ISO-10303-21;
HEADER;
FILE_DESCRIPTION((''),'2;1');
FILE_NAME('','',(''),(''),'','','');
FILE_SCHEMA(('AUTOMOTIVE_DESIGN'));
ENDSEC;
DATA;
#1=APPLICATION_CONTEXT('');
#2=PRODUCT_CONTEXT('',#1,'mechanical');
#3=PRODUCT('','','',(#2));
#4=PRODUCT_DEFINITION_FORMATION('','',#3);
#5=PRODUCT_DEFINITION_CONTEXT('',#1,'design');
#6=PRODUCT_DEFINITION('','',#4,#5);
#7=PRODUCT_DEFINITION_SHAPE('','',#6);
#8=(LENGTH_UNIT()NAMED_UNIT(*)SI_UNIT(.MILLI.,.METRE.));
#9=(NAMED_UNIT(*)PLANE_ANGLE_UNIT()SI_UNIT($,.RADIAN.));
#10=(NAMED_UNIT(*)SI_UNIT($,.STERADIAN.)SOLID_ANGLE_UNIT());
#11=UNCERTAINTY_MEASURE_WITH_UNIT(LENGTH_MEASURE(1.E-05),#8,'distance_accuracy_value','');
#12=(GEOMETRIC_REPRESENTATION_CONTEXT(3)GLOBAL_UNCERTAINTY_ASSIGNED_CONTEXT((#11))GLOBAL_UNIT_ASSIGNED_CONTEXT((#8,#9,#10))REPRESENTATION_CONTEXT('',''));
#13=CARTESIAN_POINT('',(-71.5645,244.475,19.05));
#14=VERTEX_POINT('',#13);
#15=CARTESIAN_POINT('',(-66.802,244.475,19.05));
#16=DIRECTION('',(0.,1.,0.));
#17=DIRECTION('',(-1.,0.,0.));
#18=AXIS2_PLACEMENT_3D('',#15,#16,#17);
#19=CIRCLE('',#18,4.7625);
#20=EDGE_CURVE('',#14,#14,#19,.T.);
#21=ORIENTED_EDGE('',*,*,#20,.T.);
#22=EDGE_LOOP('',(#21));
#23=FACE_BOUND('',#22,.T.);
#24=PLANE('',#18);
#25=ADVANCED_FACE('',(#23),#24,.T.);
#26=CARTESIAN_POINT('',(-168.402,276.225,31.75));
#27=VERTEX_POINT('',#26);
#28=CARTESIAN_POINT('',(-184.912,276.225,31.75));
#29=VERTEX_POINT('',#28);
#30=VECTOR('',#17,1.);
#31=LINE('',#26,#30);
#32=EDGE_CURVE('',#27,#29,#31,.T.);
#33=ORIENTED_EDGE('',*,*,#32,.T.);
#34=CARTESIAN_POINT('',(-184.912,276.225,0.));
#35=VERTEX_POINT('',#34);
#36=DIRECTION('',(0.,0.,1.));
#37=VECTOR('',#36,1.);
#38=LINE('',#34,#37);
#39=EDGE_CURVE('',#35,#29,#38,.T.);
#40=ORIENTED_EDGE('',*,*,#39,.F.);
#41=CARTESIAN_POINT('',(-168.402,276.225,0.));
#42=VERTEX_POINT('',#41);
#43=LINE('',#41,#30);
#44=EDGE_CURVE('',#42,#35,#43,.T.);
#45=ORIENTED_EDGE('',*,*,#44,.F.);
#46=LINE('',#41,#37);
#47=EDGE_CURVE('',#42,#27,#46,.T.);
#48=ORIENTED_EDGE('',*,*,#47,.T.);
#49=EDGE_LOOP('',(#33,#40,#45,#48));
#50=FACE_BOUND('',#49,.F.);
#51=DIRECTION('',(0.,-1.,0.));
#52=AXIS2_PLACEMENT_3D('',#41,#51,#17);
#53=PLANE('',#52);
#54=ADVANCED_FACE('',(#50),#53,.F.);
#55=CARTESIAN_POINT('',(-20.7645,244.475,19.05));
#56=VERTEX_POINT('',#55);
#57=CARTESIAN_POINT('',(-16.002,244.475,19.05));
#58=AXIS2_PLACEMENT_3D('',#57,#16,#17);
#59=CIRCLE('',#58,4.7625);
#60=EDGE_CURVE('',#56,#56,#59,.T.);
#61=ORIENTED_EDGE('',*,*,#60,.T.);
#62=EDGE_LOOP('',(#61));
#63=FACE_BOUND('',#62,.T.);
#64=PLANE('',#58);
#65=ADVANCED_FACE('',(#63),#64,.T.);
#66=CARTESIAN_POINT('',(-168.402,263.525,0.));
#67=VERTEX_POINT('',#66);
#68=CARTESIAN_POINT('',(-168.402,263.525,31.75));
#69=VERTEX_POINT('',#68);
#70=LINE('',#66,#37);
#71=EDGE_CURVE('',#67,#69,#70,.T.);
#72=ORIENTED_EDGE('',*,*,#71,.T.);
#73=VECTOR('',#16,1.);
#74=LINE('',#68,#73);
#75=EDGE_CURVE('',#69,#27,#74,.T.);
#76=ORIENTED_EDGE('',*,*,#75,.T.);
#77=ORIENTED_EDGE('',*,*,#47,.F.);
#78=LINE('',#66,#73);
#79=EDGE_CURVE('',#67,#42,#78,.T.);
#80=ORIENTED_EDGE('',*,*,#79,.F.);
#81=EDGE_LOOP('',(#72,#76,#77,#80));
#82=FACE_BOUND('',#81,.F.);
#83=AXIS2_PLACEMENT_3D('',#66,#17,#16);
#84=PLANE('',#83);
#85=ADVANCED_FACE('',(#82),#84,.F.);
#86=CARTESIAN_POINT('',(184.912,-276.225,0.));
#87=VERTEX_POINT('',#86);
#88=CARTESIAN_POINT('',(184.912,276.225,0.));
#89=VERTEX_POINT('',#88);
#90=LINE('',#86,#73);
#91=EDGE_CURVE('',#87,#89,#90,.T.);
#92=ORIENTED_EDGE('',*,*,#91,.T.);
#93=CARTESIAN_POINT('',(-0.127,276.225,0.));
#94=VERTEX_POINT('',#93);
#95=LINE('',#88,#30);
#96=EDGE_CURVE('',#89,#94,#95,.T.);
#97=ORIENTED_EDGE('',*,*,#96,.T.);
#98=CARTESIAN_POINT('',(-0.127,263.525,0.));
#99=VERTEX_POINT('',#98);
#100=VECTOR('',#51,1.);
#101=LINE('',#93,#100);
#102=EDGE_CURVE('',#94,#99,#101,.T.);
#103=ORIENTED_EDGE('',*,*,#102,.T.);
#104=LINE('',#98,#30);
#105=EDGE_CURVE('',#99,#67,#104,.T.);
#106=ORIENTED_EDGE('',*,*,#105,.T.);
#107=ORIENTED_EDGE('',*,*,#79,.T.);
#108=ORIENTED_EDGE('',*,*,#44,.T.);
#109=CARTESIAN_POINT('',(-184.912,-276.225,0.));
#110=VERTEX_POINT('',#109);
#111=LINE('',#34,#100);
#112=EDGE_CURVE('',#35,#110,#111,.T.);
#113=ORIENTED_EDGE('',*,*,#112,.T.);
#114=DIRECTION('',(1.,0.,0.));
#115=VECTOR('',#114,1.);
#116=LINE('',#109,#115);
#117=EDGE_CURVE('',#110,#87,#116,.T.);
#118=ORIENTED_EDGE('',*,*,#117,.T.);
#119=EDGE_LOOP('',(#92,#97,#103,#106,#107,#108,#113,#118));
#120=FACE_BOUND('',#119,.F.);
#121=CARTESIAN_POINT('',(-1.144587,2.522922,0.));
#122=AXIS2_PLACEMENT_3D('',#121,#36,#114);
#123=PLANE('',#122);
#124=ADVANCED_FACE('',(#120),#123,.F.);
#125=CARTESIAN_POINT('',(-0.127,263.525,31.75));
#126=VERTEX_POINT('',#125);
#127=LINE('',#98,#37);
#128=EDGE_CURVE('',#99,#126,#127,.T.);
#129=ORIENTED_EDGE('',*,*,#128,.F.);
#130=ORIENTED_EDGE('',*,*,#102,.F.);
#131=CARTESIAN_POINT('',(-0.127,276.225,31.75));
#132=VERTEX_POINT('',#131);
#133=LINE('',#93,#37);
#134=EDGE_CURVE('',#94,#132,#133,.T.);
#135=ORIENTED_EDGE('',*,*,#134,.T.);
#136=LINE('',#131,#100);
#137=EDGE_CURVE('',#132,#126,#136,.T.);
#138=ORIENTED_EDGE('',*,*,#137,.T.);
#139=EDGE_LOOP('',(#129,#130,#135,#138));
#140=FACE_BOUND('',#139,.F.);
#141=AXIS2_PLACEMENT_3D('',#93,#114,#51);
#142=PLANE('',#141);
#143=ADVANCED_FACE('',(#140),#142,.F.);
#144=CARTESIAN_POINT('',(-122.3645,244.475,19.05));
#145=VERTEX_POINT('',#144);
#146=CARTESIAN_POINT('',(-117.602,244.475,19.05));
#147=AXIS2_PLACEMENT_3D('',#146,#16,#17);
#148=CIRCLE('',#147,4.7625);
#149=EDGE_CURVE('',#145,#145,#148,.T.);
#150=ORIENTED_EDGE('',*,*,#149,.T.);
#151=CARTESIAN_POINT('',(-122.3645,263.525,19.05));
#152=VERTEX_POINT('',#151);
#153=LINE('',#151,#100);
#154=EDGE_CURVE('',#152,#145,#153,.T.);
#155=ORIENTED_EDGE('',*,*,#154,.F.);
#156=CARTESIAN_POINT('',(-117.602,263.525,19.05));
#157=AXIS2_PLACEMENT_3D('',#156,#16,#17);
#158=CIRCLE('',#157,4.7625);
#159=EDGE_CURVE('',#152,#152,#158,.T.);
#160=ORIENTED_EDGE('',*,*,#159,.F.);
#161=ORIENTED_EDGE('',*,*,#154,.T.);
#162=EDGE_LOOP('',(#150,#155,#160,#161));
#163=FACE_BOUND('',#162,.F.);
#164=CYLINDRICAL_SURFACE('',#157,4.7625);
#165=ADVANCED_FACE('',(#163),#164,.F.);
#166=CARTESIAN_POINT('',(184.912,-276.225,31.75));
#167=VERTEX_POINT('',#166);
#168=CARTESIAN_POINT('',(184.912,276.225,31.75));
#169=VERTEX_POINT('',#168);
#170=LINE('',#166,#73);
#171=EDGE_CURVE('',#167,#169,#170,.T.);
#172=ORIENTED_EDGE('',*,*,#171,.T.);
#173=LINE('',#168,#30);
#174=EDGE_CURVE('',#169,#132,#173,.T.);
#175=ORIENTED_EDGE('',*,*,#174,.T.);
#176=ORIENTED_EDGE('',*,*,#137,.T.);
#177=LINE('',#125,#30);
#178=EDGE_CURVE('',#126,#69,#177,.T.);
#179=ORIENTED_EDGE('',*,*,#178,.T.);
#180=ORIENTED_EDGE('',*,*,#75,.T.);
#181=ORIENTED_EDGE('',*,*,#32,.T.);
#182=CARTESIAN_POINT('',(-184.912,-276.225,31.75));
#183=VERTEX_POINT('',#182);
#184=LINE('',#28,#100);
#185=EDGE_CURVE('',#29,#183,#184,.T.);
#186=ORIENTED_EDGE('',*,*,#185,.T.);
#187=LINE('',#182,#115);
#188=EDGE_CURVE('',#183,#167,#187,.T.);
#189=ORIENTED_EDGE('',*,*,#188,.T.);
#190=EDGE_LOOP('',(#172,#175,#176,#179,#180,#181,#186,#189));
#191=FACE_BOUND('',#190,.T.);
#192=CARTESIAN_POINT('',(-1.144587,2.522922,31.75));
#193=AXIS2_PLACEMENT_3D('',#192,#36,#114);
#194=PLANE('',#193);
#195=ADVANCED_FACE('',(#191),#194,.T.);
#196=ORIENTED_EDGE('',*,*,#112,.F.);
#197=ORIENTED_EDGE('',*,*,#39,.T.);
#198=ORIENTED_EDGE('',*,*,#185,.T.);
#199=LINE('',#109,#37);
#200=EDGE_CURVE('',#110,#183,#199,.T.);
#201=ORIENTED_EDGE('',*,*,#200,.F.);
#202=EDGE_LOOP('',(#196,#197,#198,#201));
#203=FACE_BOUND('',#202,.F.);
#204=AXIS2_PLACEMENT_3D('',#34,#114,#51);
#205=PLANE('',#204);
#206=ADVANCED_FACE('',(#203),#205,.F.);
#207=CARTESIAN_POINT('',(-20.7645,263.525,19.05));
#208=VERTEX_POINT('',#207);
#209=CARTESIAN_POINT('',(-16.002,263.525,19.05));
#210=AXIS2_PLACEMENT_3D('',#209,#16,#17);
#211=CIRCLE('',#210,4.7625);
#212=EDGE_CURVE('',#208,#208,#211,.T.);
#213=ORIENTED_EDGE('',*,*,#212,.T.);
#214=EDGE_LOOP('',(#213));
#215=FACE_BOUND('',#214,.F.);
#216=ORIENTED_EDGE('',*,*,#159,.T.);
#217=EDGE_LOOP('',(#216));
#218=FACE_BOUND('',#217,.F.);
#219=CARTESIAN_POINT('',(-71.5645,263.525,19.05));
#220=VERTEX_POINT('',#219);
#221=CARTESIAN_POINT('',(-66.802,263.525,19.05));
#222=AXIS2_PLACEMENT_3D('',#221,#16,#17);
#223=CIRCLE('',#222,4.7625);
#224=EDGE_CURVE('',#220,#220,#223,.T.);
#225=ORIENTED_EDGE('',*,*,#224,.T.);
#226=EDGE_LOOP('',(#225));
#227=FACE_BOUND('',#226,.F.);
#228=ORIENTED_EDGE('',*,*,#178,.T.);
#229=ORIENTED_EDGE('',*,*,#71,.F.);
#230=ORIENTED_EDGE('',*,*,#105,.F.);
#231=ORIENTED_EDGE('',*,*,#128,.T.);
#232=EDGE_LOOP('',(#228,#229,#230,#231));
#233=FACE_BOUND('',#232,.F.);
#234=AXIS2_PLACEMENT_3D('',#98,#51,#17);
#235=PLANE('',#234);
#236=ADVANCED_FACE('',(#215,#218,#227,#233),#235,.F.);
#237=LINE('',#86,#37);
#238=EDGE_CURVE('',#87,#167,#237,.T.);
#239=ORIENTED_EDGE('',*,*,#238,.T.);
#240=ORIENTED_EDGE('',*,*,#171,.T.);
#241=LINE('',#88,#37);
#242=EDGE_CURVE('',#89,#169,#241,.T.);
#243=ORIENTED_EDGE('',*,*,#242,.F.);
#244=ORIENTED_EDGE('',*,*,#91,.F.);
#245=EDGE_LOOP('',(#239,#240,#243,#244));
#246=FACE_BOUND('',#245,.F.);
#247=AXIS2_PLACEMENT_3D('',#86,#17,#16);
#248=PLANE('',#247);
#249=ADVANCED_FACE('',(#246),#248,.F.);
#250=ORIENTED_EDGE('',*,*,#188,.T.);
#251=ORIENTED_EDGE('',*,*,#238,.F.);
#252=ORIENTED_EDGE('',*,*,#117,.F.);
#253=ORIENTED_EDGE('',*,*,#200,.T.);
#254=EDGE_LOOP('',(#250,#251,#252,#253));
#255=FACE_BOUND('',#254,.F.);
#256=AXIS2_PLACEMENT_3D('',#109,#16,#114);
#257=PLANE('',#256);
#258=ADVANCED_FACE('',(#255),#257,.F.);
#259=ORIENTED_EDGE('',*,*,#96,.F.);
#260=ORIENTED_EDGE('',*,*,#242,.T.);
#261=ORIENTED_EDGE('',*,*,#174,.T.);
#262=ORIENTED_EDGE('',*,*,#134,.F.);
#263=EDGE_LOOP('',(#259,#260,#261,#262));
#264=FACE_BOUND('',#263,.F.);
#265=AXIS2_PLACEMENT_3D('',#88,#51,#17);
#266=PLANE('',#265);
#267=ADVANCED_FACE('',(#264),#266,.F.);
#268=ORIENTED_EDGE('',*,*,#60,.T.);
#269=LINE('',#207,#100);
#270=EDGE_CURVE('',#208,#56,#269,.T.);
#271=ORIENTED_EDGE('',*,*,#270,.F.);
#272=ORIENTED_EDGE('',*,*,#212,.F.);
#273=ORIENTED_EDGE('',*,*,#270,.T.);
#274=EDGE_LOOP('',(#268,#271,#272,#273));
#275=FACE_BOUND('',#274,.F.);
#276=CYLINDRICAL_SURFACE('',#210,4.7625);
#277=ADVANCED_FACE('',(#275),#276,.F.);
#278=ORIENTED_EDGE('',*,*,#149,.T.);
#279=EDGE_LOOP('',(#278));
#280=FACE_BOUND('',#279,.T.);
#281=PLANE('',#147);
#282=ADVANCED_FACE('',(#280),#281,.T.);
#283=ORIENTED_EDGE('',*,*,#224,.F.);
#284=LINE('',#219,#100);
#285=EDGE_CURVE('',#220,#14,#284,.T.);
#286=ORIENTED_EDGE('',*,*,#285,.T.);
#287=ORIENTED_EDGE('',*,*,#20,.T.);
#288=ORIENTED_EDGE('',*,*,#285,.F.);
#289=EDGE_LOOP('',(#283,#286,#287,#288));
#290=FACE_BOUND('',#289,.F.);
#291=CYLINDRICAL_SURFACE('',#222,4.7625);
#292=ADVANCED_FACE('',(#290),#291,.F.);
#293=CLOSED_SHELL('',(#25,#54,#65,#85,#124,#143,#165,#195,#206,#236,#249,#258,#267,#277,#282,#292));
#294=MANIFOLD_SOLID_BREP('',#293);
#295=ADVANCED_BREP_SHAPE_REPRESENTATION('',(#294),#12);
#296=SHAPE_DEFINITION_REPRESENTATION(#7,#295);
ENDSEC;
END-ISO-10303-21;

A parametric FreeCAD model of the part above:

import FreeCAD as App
import Part
import Sketcher
from FreeCAD import Vector
Q = App.Units.Quantity


def add_polygon(sketch, points):
    """Adds a closed chain of lines whose ends are joined by coincident constraints."""
    first, n = sketch.GeometryCount, len(points)
    for a, b in zip(points, points[1:] + points[:1]):
        sketch.addGeometry(Part.LineSegment(App.Vector(*a, 0), App.Vector(*b, 0)), False)
    for i in range(n):
        sketch.addConstraint(Sketcher.Constraint("Coincident", first + i, 2, first + (i + 1) % n, 1))

doc = App.newDocument("Part")
params = doc.addObject("Spreadsheet::Sheet", "Params")
for row, (alias, value) in enumerate([
    ("sketch1_height", "0.5 in"),
    ("sketch1_width", "0.65 in"),
    ("sketch1_width2", "14.56 in"),
    ("sketch1_height2", "21.75 in"),
    ("sketch1_width3", "7.285 in"),
    ("pad1_length", "1.25 in"),
    ("sketch2_diameter", "0.375 in"),
    ("pocket1_length", "0.75 in"),
], start=1):
    params.set(f"A{row}", alias)
    params.set(f"B{row}", "=" + value)
    params.setAlias(f"B{row}", alias)

body = doc.addObject("PartDesign::Body", "Body")

sketch1 = body.newObject("Sketcher::SketchObject", "Sketch")
sketch1.AttachmentSupport = (doc.getObject("XY_Plane"), [""])
sketch1.MapMode = "FlatFace"
add_polygon(sketch1, [(185, -276), (185, 276), (0, 276), (0, 264), (-168, 264), (-168, 276), (-185, 276), (-185, -276)])
sketch1.addConstraint([
    Sketcher.Constraint("Vertical", 0),
    Sketcher.Constraint("Horizontal", 1),
    Sketcher.Constraint("Vertical", 2),
    Sketcher.Constraint("Horizontal", 3),
    Sketcher.Constraint("Vertical", 4),
    Sketcher.Constraint("Horizontal", 5),
    Sketcher.Constraint("Vertical", 6),
    Sketcher.Constraint("Horizontal", 7),
    Sketcher.Constraint("Symmetric", 0, 2, 6, 2, -1, 1),
    Sketcher.Constraint("Horizontal", 1, 2, 4, 2),
    Sketcher.Constraint("DistanceY", 2, 2, 2, 1, Q("0.5 in")),
    Sketcher.Constraint("DistanceX", 5, 2, 5, 1, Q("0.65 in")),
    Sketcher.Constraint("DistanceX", 7, 1, 7, 2, Q("14.56 in")),
    Sketcher.Constraint("DistanceY", 0, 1, 0, 2, Q("21.75 in")),
    Sketcher.Constraint("DistanceX", 1, 2, 1, 1, Q("7.285 in")),
])
sketch1.setExpression("Constraints[18]", "Params.sketch1_height")
sketch1.setExpression("Constraints[19]", "Params.sketch1_width")
sketch1.setExpression("Constraints[20]", "Params.sketch1_width2")
sketch1.setExpression("Constraints[21]", "Params.sketch1_height2")
sketch1.setExpression("Constraints[22]", "Params.sketch1_width3")
pad1 = body.newObject("PartDesign::Pad", "Pad")
pad1.Profile = sketch1
pad1.setExpression("Length", "Params.pad1_length")

sketch2 = body.newObject("Sketcher::SketchObject", "Sketch001")
sketch2.AttachmentSupport = (doc.getObject("XZ_Plane"), [""])
sketch2.MapMode = "FlatFace"
sketch2.AttachmentOffset = App.Placement(Vector(0, 0, -10.375 * 25.4), App.Rotation())
sketch2.addGeometry([
    Part.Circle(Vector(-117.6, 19.1, 0), Vector(0, 0, 1), 4.8),
    Part.Circle(Vector(-66.8, 19.1, 0), Vector(0, 0, 1), 4.8),
    Part.Circle(Vector(-16, 19.1, 0), Vector(0, 0, 1), 4.8),
], False)
sketch2.addConstraint([
    Sketcher.Constraint("Equal", 0, 1),
    Sketcher.Constraint("Equal", 1, 2),
    Sketcher.Constraint("Horizontal", 0, 3, 1, 3),
    Sketcher.Constraint("Horizontal", 1, 3, 2, 3),
    Sketcher.Constraint("Diameter", 0, Q("0.375 in")),
    Sketcher.Constraint("DistanceX", 0, 3, 1, 3, Q("2 in")),
    Sketcher.Constraint("DistanceX", 1, 3, 2, 3, Q("2 in")),
    Sketcher.Constraint("DistanceX", 0, 3, -1, 1, Q("4.63 in")),
    Sketcher.Constraint("DistanceY", -1, 1, 0, 3, Q("0.75 in")),
])
sketch2.setExpression("Constraints[4]", "Params.sketch2_diameter")
pocket1 = body.newObject("PartDesign::Pocket", "Pocket")
pocket1.Profile = sketch2
pocket1.setExpression("Length", "Params.pocket1_length")
pocket1.Reversed = True

doc.recompute()
